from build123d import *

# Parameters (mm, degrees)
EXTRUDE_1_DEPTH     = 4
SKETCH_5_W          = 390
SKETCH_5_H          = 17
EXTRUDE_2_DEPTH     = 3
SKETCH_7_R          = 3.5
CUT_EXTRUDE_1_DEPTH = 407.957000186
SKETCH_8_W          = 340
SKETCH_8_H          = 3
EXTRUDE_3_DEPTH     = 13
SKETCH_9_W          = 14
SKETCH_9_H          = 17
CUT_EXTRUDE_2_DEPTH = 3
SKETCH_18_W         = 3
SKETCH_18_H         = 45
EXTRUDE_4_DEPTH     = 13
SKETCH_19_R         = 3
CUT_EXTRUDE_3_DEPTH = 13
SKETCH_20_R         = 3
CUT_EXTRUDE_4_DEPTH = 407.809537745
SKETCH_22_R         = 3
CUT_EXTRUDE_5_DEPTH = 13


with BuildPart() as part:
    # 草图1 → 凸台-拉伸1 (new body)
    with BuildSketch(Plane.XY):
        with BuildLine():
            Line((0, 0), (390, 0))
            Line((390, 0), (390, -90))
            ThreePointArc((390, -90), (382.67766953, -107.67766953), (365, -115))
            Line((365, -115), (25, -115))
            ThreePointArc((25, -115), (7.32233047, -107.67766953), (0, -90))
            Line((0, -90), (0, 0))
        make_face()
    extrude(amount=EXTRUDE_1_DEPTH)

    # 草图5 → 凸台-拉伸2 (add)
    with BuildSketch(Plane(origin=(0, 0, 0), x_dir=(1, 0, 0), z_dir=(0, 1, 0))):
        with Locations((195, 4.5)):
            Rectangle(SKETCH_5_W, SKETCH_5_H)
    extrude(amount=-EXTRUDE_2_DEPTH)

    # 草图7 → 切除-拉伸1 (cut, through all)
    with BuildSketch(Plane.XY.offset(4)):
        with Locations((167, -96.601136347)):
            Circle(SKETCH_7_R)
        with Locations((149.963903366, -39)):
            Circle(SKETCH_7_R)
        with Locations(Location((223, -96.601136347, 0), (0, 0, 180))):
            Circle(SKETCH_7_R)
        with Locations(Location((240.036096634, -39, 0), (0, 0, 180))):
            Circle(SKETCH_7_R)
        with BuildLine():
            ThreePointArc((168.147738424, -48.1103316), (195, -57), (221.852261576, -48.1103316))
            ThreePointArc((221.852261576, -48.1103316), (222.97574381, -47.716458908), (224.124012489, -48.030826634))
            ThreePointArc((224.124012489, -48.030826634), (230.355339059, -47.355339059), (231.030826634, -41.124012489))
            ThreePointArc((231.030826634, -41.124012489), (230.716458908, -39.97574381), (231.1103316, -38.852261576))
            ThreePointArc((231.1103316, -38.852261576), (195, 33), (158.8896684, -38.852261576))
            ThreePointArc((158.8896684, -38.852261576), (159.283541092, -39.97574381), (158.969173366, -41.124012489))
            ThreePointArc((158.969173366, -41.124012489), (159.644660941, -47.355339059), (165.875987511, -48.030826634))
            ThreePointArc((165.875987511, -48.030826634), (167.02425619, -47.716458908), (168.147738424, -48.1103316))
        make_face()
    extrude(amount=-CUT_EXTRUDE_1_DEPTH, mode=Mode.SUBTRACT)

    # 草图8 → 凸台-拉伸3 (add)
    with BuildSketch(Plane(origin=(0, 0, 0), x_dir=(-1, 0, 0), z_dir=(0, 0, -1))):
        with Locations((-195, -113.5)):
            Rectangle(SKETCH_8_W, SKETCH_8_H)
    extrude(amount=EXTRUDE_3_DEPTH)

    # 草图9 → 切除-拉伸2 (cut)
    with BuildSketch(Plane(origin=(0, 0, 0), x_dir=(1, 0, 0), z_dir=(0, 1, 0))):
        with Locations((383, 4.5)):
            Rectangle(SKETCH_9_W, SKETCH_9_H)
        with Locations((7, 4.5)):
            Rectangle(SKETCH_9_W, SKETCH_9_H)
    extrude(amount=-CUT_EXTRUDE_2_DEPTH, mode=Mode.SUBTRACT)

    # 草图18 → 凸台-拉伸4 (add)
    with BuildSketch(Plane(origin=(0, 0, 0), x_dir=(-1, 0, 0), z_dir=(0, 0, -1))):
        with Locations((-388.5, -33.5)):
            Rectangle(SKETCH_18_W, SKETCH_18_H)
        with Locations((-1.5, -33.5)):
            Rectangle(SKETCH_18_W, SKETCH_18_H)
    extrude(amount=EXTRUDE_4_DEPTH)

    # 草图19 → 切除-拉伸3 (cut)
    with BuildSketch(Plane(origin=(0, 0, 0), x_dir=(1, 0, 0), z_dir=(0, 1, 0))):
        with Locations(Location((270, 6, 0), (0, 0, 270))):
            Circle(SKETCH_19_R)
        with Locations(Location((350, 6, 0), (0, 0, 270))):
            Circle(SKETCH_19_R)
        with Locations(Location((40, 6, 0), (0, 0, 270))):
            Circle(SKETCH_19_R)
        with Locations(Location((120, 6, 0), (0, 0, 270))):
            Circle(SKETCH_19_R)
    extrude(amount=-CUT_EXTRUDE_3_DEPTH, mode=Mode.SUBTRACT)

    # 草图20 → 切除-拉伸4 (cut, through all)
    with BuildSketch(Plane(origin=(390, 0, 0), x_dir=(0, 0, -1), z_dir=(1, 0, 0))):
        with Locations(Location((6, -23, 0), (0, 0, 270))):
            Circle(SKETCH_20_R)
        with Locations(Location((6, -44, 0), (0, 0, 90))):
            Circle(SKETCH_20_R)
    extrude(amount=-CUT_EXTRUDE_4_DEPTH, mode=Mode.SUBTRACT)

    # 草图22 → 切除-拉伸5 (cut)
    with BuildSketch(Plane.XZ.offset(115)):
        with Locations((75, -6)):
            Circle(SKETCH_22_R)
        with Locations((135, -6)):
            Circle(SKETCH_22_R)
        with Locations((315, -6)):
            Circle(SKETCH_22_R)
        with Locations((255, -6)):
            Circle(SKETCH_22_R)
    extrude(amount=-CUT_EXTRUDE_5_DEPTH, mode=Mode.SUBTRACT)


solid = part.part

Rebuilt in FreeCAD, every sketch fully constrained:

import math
import FreeCAD as App
import Part
import Sketcher
Q = App.Units.Quantity


def add_polygon(sketch, points):
    """Adds a closed chain of lines whose ends are joined by coincident constraints."""
    first, n = sketch.GeometryCount, len(points)
    for a, b in zip(points, points[1:] + points[:1]):
        sketch.addGeometry(Part.LineSegment(App.Vector(*a, 0), App.Vector(*b, 0)), False)
    for i in range(n):
        sketch.addConstraint(Sketcher.Constraint("Coincident", first + i, 2, first + (i + 1) % n, 1))

doc = App.newDocument("Part")
body = doc.addObject("PartDesign::Body", "Body")

# Sketch on XY plane
sketch1 = body.newObject("Sketcher::SketchObject", "Sketch")
sketch1.AttachmentSupport = (doc.getObject("XY_Plane"), [""])
sketch1.MapMode = "FlatFace"
sketch1.addGeometry([
    Part.LineSegment(App.Vector(390, 0, 0), App.Vector(0, 0, 0)),  # 0
    Part.LineSegment(App.Vector(0, 0, 0), App.Vector(0, -90, 0)),  # 1
    Part.ArcOfCircle(Part.Circle(App.Vector(25, -90, 0), App.Vector(0, 0, 1), 25), math.radians(180), math.radians(270)),  # 2
    Part.LineSegment(App.Vector(25, -115, 0), App.Vector(365, -115, 0)),  # 3
    Part.ArcOfCircle(Part.Circle(App.Vector(365, -90, 0), App.Vector(0, 0, 1), 25), math.radians(-90), math.radians(0)),  # 4
    Part.LineSegment(App.Vector(390, -90, 0), App.Vector(390, 0, 0)),  # 5
], False)
sketch1.addConstraint([
    Sketcher.Constraint("Coincident", 0, 2, 1, 1),
    Sketcher.Constraint("Tangent", 1, 2, 2, 1),
    Sketcher.Constraint("Tangent", 2, 2, 3, 1),
    Sketcher.Constraint("Tangent", 3, 2, 4, 1),
    Sketcher.Constraint("Tangent", 4, 2, 5, 1),
    Sketcher.Constraint("Coincident", 5, 2, 0, 1),
    Sketcher.Constraint("Horizontal", 0),
    Sketcher.Constraint("Vertical", 1),
    Sketcher.Constraint("Horizontal", 3),
    Sketcher.Constraint("Vertical", 5),
    Sketcher.Constraint("Coincident", 0, 2, -1, 1),
    Sketcher.Constraint("Equal", 2, 4),
    Sketcher.Constraint("Radius", 2, Q("25 mm")),
    Sketcher.Constraint("DistanceX", 0, 2, 0, 1, Q("390 mm")),
    Sketcher.Constraint("DistanceY", 1, 2, 1, 1, Q("90 mm")),
])
pad1 = body.newObject("PartDesign::Pad", "Pad")
pad1.Profile = sketch1
pad1.Length = 4

# Sketch on XZ plane
sketch2 = body.newObject("Sketcher::SketchObject", "Sketch001")
sketch2.AttachmentSupport = (doc.getObject("XZ_Plane"), [""])
sketch2.MapMode = "FlatFace"
add_polygon(sketch2, [(0, -13), (0, 4), (390, 4), (390, -13)])  # lines 0-3
sketch2.addConstraint([
    Sketcher.Constraint("Vertical", 0),
    Sketcher.Constraint("Horizontal", 1),
    Sketcher.Constraint("Vertical", 2),
    Sketcher.Constraint("Horizontal", 3),
    Sketcher.Constraint("PointOnObject", 0, 2, -2),
    Sketcher.Constraint("DistanceX", 1, 1, 1, 2, Q("390 mm")),
    Sketcher.Constraint("DistanceY", 0, 1, 0, 2, Q("17 mm")),
    Sketcher.Constraint("DistanceY", -1, 1, 0, 2, Q("4 mm")),
])
pad2 = body.newObject("PartDesign::Pad", "Pad001")
pad2.Profile = sketch2
pad2.Length = 3

# Sketch on XY plane
sketch3 = body.newObject("Sketcher::SketchObject", "Sketch002")
sketch3.AttachmentSupport = (doc.getObject("XY_Plane"), [""])
sketch3.MapMode = "FlatFace"
sketch3.AttachmentOffset = App.Placement(App.Vector(0, 0, 4), App.Rotation())
sketch3.addGeometry([
    Part.Circle(App.Vector(167, -96.6, 0), App.Vector(0, 0, 1), 3.5),  # 0
    Part.Circle(App.Vector(150, -39, 0), App.Vector(0, 0, 1), 3.5),  # 1
    Part.Circle(App.Vector(223, -96.6, 0), App.Vector(0, 0, 1), 3.5),  # 2
    Part.Circle(App.Vector(240, -39, 0), App.Vector(0, 0, 1), 3.5),  # 3
    Part.ArcOfCircle(Part.Circle(App.Vector(195, -12, 0), App.Vector(0, 0, 1), 45), math.radians(-127), math.radians(-53)),  # 4
    Part.ArcOfCircle(Part.Circle(App.Vector(223, -49.7, 0), App.Vector(0, 0, 1), 2), math.radians(57), math.radians(127)),  # 5
    Part.ArcOfCircle(Part.Circle(App.Vector(226.8, -43.8, 0), App.Vector(0, 0, 1), 5), math.radians(-123), math.radians(33)),  # 6
    Part.ArcOfCircle(Part.Circle(App.Vector(232.7, -40, 0), App.Vector(0, 0, 1), 2), math.radians(143), math.radians(213)),  # 7
    Part.ArcOfCircle(Part.Circle(App.Vector(195, -12, 0), App.Vector(0, 0, 1), 45), math.radians(-37), math.radians(217)),  # 8
    Part.ArcOfCircle(Part.Circle(App.Vector(157.3, -40, 0), App.Vector(0, 0, 1), 2), math.radians(-33), math.radians(37)),  # 9
    Part.ArcOfCircle(Part.Circle(App.Vector(163.2, -43.8, 0), App.Vector(0, 0, 1), 5), math.radians(147), math.radians(303)),  # 10
    Part.ArcOfCircle(Part.Circle(App.Vector(167, -49.7, 0), App.Vector(0, 0, 1), 2), math.radians(53), math.radians(123)),  # 11
], False)
sketch3.addConstraint([
    Sketcher.Constraint("Tangent", 4, 2, 5, 2),
    Sketcher.Constraint("Tangent", 5, 1, 6, 1),
    Sketcher.Constraint("Tangent", 6, 2, 7, 2),
    Sketcher.Constraint("Tangent", 7, 1, 8, 1),
    Sketcher.Constraint("Tangent", 8, 2, 9, 2),
    Sketcher.Constraint("Tangent", 9, 1, 10, 1),
    Sketcher.Constraint("Tangent", 10, 2, 11, 2),
    Sketcher.Constraint("Tangent", 11, 1, 4, 1),
    Sketcher.Constraint("Coincident", 8, 3, 4, 3),
    Sketcher.Constraint("Equal", 0, 1),
    Sketcher.Constraint("Equal", 1, 2),
    Sketcher.Constraint("Equal", 2, 3),
    Sketcher.Constraint("Equal", 5, 7),
    Sketcher.Constraint("Equal", 4, 8),
    Sketcher.Constraint("Equal", 7, 9),
    Sketcher.Constraint("Equal", 6, 10),
    Sketcher.Constraint("Equal", 9, 11),
    Sketcher.Constraint("Horizontal", 0, 3, 2, 3),
    Sketcher.Constraint("Horizontal", 1, 3, 3, 3),
    Sketcher.Constraint("Horizontal", 7, 3, 9, 3),
    Sketcher.Constraint("Horizontal", 6, 3, 10, 3),
    Sketcher.Constraint("Diameter", 0, Q("7 mm")),
    Sketcher.Constraint("Radius", 4, Q("45 mm")),
    Sketcher.Constraint("Radius", 5, Q("2 mm")),
    Sketcher.Constraint("Radius", 6, Q("5 mm")),
    Sketcher.Constraint("DistanceX", -1, 1, 0, 3, Q("167 mm")),
    Sketcher.Constraint("DistanceY", 1, 3, -1, 1, Q("39 mm")),
    Sketcher.Constraint("DistanceX", -1, 1, 2, 3, Q("223 mm")),
    Sketcher.Constraint("DistanceX", -1, 1, 4, 3, Q("195 mm")),
    Sketcher.Constraint("DistanceY", 4, 3, -1, 1, Q("12 mm")),
    Sketcher.Constraint("DistanceX", 5, 3, 3, 3, Q("16.990401 mm")),
    Sketcher.Constraint("DistanceY", 2, 3, 5, 3, Q("46.885901 mm")),
    Sketcher.Constraint("DistanceX", 1, 3, 6, 3, Q("76.855902 mm")),
    Sketcher.Constraint("DistanceX", 1, 3, 11, 3, Q("16.990401 mm")),
    Sketcher.Constraint("DistanceX", -1, 1, 4, 2, Q("221.852262 mm")),
])
pocket1 = body.newObject("PartDesign::Pocket", "Pocket")
pocket1.Profile = sketch3
pocket1.Type = "ThroughAll"

# Sketch on XY plane
sketch4 = body.newObject("Sketcher::SketchObject", "Sketch003")
sketch4.AttachmentSupport = (doc.getObject("XY_Plane"), [""])
sketch4.MapMode = "FlatFace"
add_polygon(sketch4, [(365, -112), (365, -115), (25, -115), (25, -112)])  # lines 0-3
sketch4.addConstraint([
    Sketcher.Constraint("Vertical", 0),
    Sketcher.Constraint("Horizontal", 1),
    Sketcher.Constraint("Vertical", 2),
    Sketcher.Constraint("Horizontal", 3),
    Sketcher.Constraint("DistanceX", 1, 2, 1, 1, Q("340 mm")),
    Sketcher.Constraint("DistanceY", 0, 2, 0, 1, Q("3 mm")),
    Sketcher.Constraint("DistanceX", -1, 1, 0, 2, Q("365 mm")),
    Sketcher.Constraint("DistanceY", 0, 2, -1, 1, Q("115 mm")),
])
pad3 = body.newObject("PartDesign::Pad", "Pad002")
pad3.Profile = sketch4
pad3.Length = 13
pad3.Reversed = True

# Sketch on XZ plane
sketch5 = body.newObject("Sketcher::SketchObject", "Sketch004")
sketch5.AttachmentSupport = (doc.getObject("XZ_Plane"), [""])
sketch5.MapMode = "FlatFace"
add_polygon(sketch5, [(376, -13), (376, 4), (390, 4), (390, -13)])  # lines 0-3
add_polygon(sketch5, [(0, -13), (0, 4), (14, 4), (14, -13)])  # lines 4-7
sketch5.addConstraint([
    Sketcher.Constraint("Vertical", 0),
    Sketcher.Constraint("Horizontal", 1),
    Sketcher.Constraint("Vertical", 2),
    Sketcher.Constraint("Horizontal", 3),
    Sketcher.Constraint("Vertical", 4),
    Sketcher.Constraint("Horizontal", 5),
    Sketcher.Constraint("Vertical", 6),
    Sketcher.Constraint("Horizontal", 7),
    Sketcher.Constraint("PointOnObject", 4, 2, -2),
    Sketcher.Constraint("Horizontal", 1, 2, 4, 2),
    Sketcher.Constraint("Horizontal", 3, 2, 6, 2),
    Sketcher.Constraint("Equal", 3, 5),
    Sketcher.Constraint("DistanceX", 1, 1, 1, 2, Q("14 mm")),
    Sketcher.Constraint("DistanceY", 0, 1, 0, 2, Q("17 mm")),
    Sketcher.Constraint("DistanceX", -1, 1, 0, 2, Q("376 mm")),
    Sketcher.Constraint("DistanceY", -1, 1, 0, 2, Q("4 mm")),
])
pocket2 = body.newObject("PartDesign::Pocket", "Pocket001")
pocket2.Profile = sketch5
pocket2.Length = 3
pocket2.Reversed = True

# Sketch on XY plane
sketch6 = body.newObject("Sketcher::SketchObject", "Sketch005")
sketch6.AttachmentSupport = (doc.getObject("XY_Plane"), [""])
sketch6.MapMode = "FlatFace"
add_polygon(sketch6, [(390, -11), (390, -56), (387, -56), (387, -11)])  # lines 0-3
add_polygon(sketch6, [(3, -11), (3, -56), (0, -56), (0, -11)])  # lines 4-7
sketch6.addConstraint([
    Sketcher.Constraint("Vertical", 0),
    Sketcher.Constraint("Horizontal", 1),
    Sketcher.Constraint("Vertical", 2),
    Sketcher.Constraint("Horizontal", 3),
    Sketcher.Constraint("Vertical", 4),
    Sketcher.Constraint("Horizontal", 5),
    Sketcher.Constraint("Vertical", 6),
    Sketcher.Constraint("Horizontal", 7),
    Sketcher.Constraint("PointOnObject", 5, 2, -2),
    Sketcher.Constraint("Horizontal", 1, 2, 4, 2),
    Sketcher.Constraint("Horizontal", 3, 2, 6, 2),
    Sketcher.Constraint("Equal", 3, 5),
    Sketcher.Constraint("DistanceX", 1, 2, 1, 1, Q("3 mm")),
    Sketcher.Constraint("DistanceY", 0, 2, 0, 1, Q("45 mm")),
    Sketcher.Constraint("DistanceX", -1, 1, 0, 2, Q("390 mm")),
    Sketcher.Constraint("DistanceY", 0, 2, -1, 1, Q("56 mm")),
])
pad4 = body.newObject("PartDesign::Pad", "Pad003")
pad4.Profile = sketch6
pad4.Length = 13
pad4.Reversed = True

# Sketch on XZ plane
sketch7 = body.newObject("Sketcher::SketchObject", "Sketch006")
sketch7.AttachmentSupport = (doc.getObject("XZ_Plane"), [""])
sketch7.MapMode = "FlatFace"
sketch7.addGeometry([
    Part.Circle(App.Vector(270, -6, 0), App.Vector(0, 0, 1), 3),
    Part.Circle(App.Vector(350, -6, 0), App.Vector(0, 0, 1), 3),
    Part.Circle(App.Vector(40, -6, 0), App.Vector(0, 0, 1), 3),
    Part.Circle(App.Vector(120, -6, 0), App.Vector(0, 0, 1), 3),
], False)
sketch7.addConstraint([
    Sketcher.Constraint("Equal", 0, 1),
    Sketcher.Constraint("Equal", 1, 2),
    Sketcher.Constraint("Equal", 2, 3),
    Sketcher.Constraint("Horizontal", 0, 3, 1, 3),
    Sketcher.Constraint("Horizontal", 1, 3, 2, 3),
    Sketcher.Constraint("Horizontal", 2, 3, 3, 3),
    Sketcher.Constraint("Diameter", 0, Q("6 mm")),
    Sketcher.Constraint("DistanceX", -1, 1, 0, 3, Q("270 mm")),
    Sketcher.Constraint("DistanceY", 0, 3, -1, 1, Q("6 mm")),
    Sketcher.Constraint("DistanceX", -1, 1, 1, 3, Q("350 mm")),
    Sketcher.Constraint("DistanceX", -1, 1, 2, 3, Q("40 mm")),
    Sketcher.Constraint("DistanceX", -1, 1, 3, 3, Q("120 mm")),
])
pocket3 = body.newObject("PartDesign::Pocket", "Pocket002")
pocket3.Profile = sketch7
pocket3.Length = 13
pocket3.Reversed = True

# Sketch on YZ plane
sketch8 = body.newObject("Sketcher::SketchObject", "Sketch007")
sketch8.AttachmentSupport = (doc.getObject("YZ_Plane"), [""])
sketch8.MapMode = "FlatFace"
sketch8.AttachmentOffset = App.Placement(App.Vector(0, 0, 390), App.Rotation())
sketch8.addGeometry([
    Part.Circle(App.Vector(-23, -6, 0), App.Vector(0, 0, 1), 3),
    Part.Circle(App.Vector(-44, -6, 0), App.Vector(0, 0, 1), 3),
], False)
sketch8.addConstraint([
    Sketcher.Constraint("Equal", 0, 1),
    Sketcher.Constraint("Horizontal", 0, 3, 1, 3),
    Sketcher.Constraint("Diameter", 0, Q("6 mm")),
    Sketcher.Constraint("DistanceX", 0, 3, -1, 1, Q("23 mm")),
    Sketcher.Constraint("DistanceY", 0, 3, -1, 1, Q("6 mm")),
    Sketcher.Constraint("DistanceX", 1, 3, -1, 1, Q("44 mm")),
])
pocket4 = body.newObject("PartDesign::Pocket", "Pocket003")
pocket4.Profile = sketch8
pocket4.Type = "ThroughAll"

# Sketch on XZ plane
sketch9 = body.newObject("Sketcher::SketchObject", "Sketch008")
sketch9.AttachmentSupport = (doc.getObject("XZ_Plane"), [""])
sketch9.MapMode = "FlatFace"
sketch9.AttachmentOffset = App.Placement(App.Vector(0, 0, 115), App.Rotation())
sketch9.addGeometry([
    Part.Circle(App.Vector(75, -6, 0), App.Vector(0, 0, 1), 3),
    Part.Circle(App.Vector(135, -6, 0), App.Vector(0, 0, 1), 3),
    Part.Circle(App.Vector(315, -6, 0), App.Vector(0, 0, 1), 3),
    Part.Circle(App.Vector(255, -6, 0), App.Vector(0, 0, 1), 3),
], False)
sketch9.addConstraint([
    Sketcher.Constraint("Equal", 0, 1),
    Sketcher.Constraint("Equal", 1, 2),
    Sketcher.Constraint("Equal", 2, 3),
    Sketcher.Constraint("Horizontal", 0, 3, 1, 3),
    Sketcher.Constraint("Horizontal", 1, 3, 2, 3),
    Sketcher.Constraint("Horizontal", 2, 3, 3, 3),
    Sketcher.Constraint("Diameter", 0, Q("6 mm")),
    Sketcher.Constraint("DistanceX", -1, 1, 0, 3, Q("75 mm")),
    Sketcher.Constraint("DistanceY", 0, 3, -1, 1, Q("6 mm")),
    Sketcher.Constraint("DistanceX", -1, 1, 1, 3, Q("135 mm")),
    Sketcher.Constraint("DistanceX", -1, 1, 2, 3, Q("315 mm")),
    Sketcher.Constraint("DistanceX", -1, 1, 3, 3, Q("255 mm")),
])
pocket5 = body.newObject("PartDesign::Pocket", "Pocket004")
pocket5.Profile = sketch9
pocket5.Length = 13

doc.recompute()
